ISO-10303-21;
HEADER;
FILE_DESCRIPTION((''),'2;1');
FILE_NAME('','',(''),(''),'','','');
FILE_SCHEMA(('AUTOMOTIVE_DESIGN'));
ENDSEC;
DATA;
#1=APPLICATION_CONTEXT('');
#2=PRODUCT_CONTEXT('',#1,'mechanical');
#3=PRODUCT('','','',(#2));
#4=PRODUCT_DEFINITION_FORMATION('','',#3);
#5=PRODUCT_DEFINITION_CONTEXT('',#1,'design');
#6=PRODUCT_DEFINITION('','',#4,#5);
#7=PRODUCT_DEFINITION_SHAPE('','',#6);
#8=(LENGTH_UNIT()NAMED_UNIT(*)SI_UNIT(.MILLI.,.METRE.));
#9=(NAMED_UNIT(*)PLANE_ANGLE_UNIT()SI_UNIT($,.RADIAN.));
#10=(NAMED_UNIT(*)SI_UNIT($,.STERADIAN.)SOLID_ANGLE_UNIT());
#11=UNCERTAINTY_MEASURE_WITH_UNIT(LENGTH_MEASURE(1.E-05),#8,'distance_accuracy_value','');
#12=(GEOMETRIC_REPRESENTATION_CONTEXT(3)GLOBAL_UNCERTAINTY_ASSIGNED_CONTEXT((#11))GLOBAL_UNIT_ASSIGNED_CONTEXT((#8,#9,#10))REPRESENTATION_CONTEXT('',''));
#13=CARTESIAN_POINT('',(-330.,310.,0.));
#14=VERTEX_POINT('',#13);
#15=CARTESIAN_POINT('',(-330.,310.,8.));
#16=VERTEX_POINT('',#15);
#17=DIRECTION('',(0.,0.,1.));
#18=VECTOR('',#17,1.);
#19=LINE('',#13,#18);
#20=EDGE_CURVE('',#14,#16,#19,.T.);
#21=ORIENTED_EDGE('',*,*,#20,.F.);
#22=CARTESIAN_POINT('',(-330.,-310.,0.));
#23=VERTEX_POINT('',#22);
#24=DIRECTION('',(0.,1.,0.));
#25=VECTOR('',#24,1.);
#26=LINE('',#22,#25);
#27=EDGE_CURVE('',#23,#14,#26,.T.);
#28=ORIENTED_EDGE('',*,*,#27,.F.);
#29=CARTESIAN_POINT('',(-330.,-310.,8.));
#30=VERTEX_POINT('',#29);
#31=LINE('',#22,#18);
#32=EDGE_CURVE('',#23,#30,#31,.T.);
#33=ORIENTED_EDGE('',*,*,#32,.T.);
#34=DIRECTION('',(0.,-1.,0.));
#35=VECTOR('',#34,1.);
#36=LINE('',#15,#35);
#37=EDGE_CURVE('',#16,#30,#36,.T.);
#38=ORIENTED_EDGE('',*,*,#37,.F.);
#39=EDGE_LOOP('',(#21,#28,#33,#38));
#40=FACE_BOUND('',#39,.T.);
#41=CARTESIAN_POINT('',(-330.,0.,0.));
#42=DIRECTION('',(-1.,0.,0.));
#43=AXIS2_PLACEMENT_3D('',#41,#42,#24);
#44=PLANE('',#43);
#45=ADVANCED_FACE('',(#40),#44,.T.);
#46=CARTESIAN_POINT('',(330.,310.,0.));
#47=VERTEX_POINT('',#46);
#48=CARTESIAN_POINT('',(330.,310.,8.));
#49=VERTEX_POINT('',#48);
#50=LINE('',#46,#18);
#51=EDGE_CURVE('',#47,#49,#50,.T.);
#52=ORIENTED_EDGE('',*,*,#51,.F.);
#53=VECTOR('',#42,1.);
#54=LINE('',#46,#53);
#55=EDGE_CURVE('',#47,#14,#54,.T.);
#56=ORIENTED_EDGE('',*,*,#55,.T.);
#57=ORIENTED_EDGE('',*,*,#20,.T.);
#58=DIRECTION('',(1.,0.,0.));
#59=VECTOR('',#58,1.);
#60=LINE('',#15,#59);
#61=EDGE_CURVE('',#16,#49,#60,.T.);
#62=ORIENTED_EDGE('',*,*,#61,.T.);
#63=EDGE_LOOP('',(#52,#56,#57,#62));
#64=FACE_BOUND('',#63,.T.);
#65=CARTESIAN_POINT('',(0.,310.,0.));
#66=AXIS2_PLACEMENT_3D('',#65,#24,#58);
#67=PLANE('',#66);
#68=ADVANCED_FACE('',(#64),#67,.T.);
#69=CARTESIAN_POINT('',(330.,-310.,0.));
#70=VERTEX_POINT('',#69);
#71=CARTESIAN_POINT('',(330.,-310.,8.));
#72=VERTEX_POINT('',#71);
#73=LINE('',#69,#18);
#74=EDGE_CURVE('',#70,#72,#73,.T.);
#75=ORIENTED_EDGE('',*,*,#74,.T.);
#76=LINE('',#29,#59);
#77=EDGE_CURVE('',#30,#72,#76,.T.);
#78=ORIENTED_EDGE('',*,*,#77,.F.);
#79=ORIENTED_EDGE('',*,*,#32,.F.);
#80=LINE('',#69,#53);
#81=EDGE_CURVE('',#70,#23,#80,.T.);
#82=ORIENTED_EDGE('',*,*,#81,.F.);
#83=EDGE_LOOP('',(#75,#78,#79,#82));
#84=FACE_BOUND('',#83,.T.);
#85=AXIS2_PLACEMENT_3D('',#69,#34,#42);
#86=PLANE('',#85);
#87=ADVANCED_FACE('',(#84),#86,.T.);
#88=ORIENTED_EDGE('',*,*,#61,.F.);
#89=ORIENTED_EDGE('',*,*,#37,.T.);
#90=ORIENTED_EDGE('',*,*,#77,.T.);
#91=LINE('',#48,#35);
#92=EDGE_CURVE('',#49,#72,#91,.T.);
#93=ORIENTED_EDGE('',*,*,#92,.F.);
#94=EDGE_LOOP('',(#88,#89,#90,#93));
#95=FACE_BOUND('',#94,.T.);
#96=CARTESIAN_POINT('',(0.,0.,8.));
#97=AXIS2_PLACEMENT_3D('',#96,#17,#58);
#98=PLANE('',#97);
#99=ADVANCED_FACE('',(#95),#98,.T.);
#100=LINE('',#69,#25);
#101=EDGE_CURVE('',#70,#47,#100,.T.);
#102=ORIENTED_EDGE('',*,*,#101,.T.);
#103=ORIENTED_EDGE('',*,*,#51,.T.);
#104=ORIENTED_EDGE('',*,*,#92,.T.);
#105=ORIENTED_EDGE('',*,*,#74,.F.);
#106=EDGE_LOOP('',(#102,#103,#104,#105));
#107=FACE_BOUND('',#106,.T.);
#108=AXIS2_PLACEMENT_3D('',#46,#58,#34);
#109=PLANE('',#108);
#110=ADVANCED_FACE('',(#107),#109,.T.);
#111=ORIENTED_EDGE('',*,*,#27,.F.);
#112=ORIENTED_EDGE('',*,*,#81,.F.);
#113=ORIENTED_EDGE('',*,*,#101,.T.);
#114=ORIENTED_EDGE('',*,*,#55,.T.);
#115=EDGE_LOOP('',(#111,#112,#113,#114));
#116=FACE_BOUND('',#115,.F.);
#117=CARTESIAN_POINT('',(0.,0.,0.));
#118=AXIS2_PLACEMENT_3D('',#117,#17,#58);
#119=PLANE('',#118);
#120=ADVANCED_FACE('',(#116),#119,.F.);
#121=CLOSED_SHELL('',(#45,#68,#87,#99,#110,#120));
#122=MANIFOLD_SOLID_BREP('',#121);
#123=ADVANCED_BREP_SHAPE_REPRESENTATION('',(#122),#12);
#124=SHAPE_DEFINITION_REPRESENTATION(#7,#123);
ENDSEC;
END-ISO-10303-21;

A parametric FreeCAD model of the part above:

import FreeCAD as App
import Part
import Sketcher
from FreeCAD import Vector
Q = App.Units.Quantity

doc = App.newDocument("Part")
params = doc.addObject("Spreadsheet::Sheet", "Params")
for row, (alias, value) in enumerate([
    ("sketch1_width", "660 mm"),
    ("sketch1_height", "620 mm"),
    ("pad1_length", "8 mm"),
], start=1):
    params.set(f"A{row}", alias)
    params.set(f"B{row}", "=" + value)
    params.setAlias(f"B{row}", alias)

body = doc.addObject("PartDesign::Body", "Body")

# Sketch on XY plane
sketch1 = doc.addObject("Sketcher::SketchObject", "Sketch")
body.addObject(sketch1)
sketch1.AttachmentSupport = (doc.XY_Plane, [""])
sketch1.MapMode = "FlatFace"
sketch1.addGeometry([
    Part.LineSegment(Vector(330, 310, 0), Vector(-330, 310, 0)),
    Part.LineSegment(Vector(-330, 310, 0), Vector(-330, -310, 0)),
    Part.LineSegment(Vector(-330, -310, 0), Vector(330, -310, 0)),
    Part.LineSegment(Vector(330, -310, 0), Vector(330, 310, 0)),
], False)
sketch1.addConstraint([
    Sketcher.Constraint("Coincident", 0, 2, 1, 1),
    Sketcher.Constraint("Coincident", 1, 2, 2, 1),
    Sketcher.Constraint("Coincident", 2, 2, 3, 1),
    Sketcher.Constraint("Coincident", 3, 2, 0, 1),
    Sketcher.Constraint("Horizontal", 0),
    Sketcher.Constraint("Vertical", 1),
    Sketcher.Constraint("Horizontal", 2),
    Sketcher.Constraint("Vertical", 3),
    Sketcher.Constraint("Symmetric", 0, 2, 2, 2, -1, 1),
    Sketcher.Constraint("DistanceX", 0, 2, 0, 1, Q("660 mm")),
    Sketcher.Constraint("DistanceY", 1, 2, 1, 1, Q("620 mm")),
])
sketch1.setExpression("Constraints[9]", "Params.sketch1_width")
sketch1.setExpression("Constraints[10]", "Params.sketch1_height")
pad1 = doc.addObject("PartDesign::Pad", "Pad")
body.addObject(pad1)
pad1.Profile = sketch1
pad1.setExpression("Length", "Params.pad1_length")

doc.recompute()
